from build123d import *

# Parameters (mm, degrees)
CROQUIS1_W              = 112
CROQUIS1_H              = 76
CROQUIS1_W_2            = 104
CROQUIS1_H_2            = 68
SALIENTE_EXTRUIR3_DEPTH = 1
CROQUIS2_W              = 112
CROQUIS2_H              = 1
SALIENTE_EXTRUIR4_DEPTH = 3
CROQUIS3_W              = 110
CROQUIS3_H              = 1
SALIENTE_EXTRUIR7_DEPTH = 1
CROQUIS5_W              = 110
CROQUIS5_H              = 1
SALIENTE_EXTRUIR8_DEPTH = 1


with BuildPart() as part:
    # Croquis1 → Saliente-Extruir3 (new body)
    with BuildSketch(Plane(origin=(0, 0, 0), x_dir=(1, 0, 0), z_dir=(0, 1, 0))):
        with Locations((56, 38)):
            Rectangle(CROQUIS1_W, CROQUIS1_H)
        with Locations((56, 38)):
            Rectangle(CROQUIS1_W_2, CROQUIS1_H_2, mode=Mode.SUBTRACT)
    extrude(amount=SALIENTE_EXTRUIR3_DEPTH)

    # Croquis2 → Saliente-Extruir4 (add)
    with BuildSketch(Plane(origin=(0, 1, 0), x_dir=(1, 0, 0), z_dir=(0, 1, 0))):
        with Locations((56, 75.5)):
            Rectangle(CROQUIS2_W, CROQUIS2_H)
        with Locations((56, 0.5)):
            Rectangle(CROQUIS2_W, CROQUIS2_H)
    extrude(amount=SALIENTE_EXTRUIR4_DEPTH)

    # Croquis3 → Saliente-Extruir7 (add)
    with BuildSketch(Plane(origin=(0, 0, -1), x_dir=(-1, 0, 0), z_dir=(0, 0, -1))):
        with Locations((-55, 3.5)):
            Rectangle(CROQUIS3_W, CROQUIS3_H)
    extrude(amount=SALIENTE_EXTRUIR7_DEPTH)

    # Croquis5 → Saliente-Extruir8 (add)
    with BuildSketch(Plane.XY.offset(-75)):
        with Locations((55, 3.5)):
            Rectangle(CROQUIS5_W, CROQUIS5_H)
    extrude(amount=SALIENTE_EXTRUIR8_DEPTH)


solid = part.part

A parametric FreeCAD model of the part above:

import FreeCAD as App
import Part
import Sketcher

doc = App.newDocument("Part")
body = doc.addObject("PartDesign::Body", "Body")

# Sketch on XZ plane
sketch1 = body.newObject("Sketcher::SketchObject", "Sketch")
sketch1.AttachmentSupport = (doc.getObject("XZ_Plane"), [""])
sketch1.MapMode = "FlatFace"
sketch1.addGeometry([
    Part.LineSegment(App.Vector(0, -76, 0), App.Vector(0, 0, 0)),  # 0
    Part.LineSegment(App.Vector(0, 0, 0), App.Vector(112, 0, 0)),  # 1
    Part.LineSegment(App.Vector(112, 0, 0), App.Vector(112, -76, 0)),  # 2
    Part.LineSegment(App.Vector(112, -76, 0), App.Vector(0, -76, 0)),  # 3
    Part.LineSegment(App.Vector(108, -4, 0), App.Vector(4, -4, 0)),  # 4
    Part.LineSegment(App.Vector(4, -4, 0), App.Vector(4, -72, 0)),  # 5
    Part.LineSegment(App.Vector(4, -72, 0), App.Vector(108, -72, 0)),  # 6
    Part.LineSegment(App.Vector(108, -72, 0), App.Vector(108, -4, 0)),  # 7
], False)
sketch1.addConstraint([
    Sketcher.Constraint("Coincident", 0, 2, 1, 1),
    Sketcher.Constraint("Coincident", 1, 2, 2, 1),
    Sketcher.Constraint("Coincident", 2, 2, 3, 1),
    Sketcher.Constraint("Coincident", 3, 2, 0, 1),
    Sketcher.Constraint("Coincident", 4, 2, 5, 1),
    Sketcher.Constraint("Coincident", 5, 2, 6, 1),
    Sketcher.Constraint("Coincident", 6, 2, 7, 1),
    Sketcher.Constraint("Coincident", 7, 2, 4, 1),
    Sketcher.Constraint("Vertical", 0),
    Sketcher.Constraint("Horizontal", 1),
    Sketcher.Constraint("Vertical", 2),
    Sketcher.Constraint("Horizontal", 3),
    Sketcher.Constraint("Horizontal", 4),
    Sketcher.Constraint("Vertical", 5),
    Sketcher.Constraint("Horizontal", 6),
    Sketcher.Constraint("Vertical", 7),
    Sketcher.Constraint("Coincident", 0, 2, -1, 1),
    Sketcher.Constraint("DistanceX", 1, 1, 1, 2, 112.0),
    Sketcher.Constraint("DistanceX", 4, 2, 4, 1, 104.0),
    Sketcher.Constraint("DistanceY", 0, 1, 0, 2, 76.0),
    Sketcher.Constraint("DistanceY", 5, 2, 5, 1, 68.0),
    Sketcher.Constraint("DistanceX", -1, 1, 4, 2, 4.0),
    Sketcher.Constraint("DistanceY", 4, 2, -1, 1, 4.0),
])
pad1 = body.newObject("PartDesign::Pad", "Pad")
pad1.Profile = sketch1
pad1.Length = 1
pad1.Reversed = True

# Sketch on XZ plane
sketch2 = body.newObject("Sketcher::SketchObject", "Sketch001")
sketch2.AttachmentSupport = (doc.getObject("XZ_Plane"), [""])
sketch2.MapMode = "FlatFace"
sketch2.AttachmentOffset = App.Placement(App.Vector(0, 0, -1), App.Rotation())
sketch2.addGeometry([
    Part.LineSegment(App.Vector(0, -76, 0), App.Vector(0, -75, 0)),  # 0
    Part.LineSegment(App.Vector(0, -75, 0), App.Vector(112, -75, 0)),  # 1
    Part.LineSegment(App.Vector(112, -75, 0), App.Vector(112, -76, 0)),  # 2
    Part.LineSegment(App.Vector(112, -76, 0), App.Vector(0, -76, 0)),  # 3
    Part.LineSegment(App.Vector(0, -1, 0), App.Vector(0, 0, 0)),  # 4
    Part.LineSegment(App.Vector(0, 0, 0), App.Vector(112, 0, 0)),  # 5
    Part.LineSegment(App.Vector(112, 0, 0), App.Vector(112, -1, 0)),  # 6
    Part.LineSegment(App.Vector(112, -1, 0), App.Vector(0, -1, 0)),  # 7
], False)
sketch2.addConstraint([
    Sketcher.Constraint("Coincident", 0, 2, 1, 1),
    Sketcher.Constraint("Coincident", 1, 2, 2, 1),
    Sketcher.Constraint("Coincident", 2, 2, 3, 1),
    Sketcher.Constraint("Coincident", 3, 2, 0, 1),
    Sketcher.Constraint("Coincident", 4, 2, 5, 1),
    Sketcher.Constraint("Coincident", 5, 2, 6, 1),
    Sketcher.Constraint("Coincident", 6, 2, 7, 1),
    Sketcher.Constraint("Coincident", 7, 2, 4, 1),
    Sketcher.Constraint("Vertical", 0),
    Sketcher.Constraint("Horizontal", 1),
    Sketcher.Constraint("Vertical", 2),
    Sketcher.Constraint("Horizontal", 3),
    Sketcher.Constraint("Vertical", 4),
    Sketcher.Constraint("Horizontal", 5),
    Sketcher.Constraint("Vertical", 6),
    Sketcher.Constraint("Horizontal", 7),
    Sketcher.Constraint("Coincident", 4, 2, -1, 1),
    Sketcher.Constraint("PointOnObject", 0, 2, -2),
    Sketcher.Constraint("Vertical", 2, 2, 5, 2),
    Sketcher.Constraint("Equal", 2, 4),
    Sketcher.Constraint("DistanceX", 1, 1, 1, 2, 112.0),
    Sketcher.Constraint("DistanceY", 0, 1, 0, 2, 1.0),
    Sketcher.Constraint("DistanceY", 0, 2, -1, 1, 75.0),
])
pad2 = body.newObject("PartDesign::Pad", "Pad001")
pad2.Profile = sketch2
pad2.Length = 3
pad2.Reversed = True

# Sketch on XY plane
sketch3 = body.newObject("Sketcher::SketchObject", "Sketch002")
sketch3.AttachmentSupport = (doc.getObject("XY_Plane"), [""])
sketch3.MapMode = "FlatFace"
sketch3.AttachmentOffset = App.Placement(App.Vector(0, 0, -1), App.Rotation())
sketch3.addGeometry([
    Part.LineSegment(App.Vector(110, 4, 0), App.Vector(110, 3, 0)),
    Part.LineSegment(App.Vector(110, 3, 0), App.Vector(0, 3, 0)),
    Part.LineSegment(App.Vector(0, 3, 0), App.Vector(0, 4, 0)),
    Part.LineSegment(App.Vector(0, 4, 0), App.Vector(110, 4, 0)),
], False)
sketch3.addConstraint([
    Sketcher.Constraint("Coincident", 0, 2, 1, 1),
    Sketcher.Constraint("Coincident", 1, 2, 2, 1),
    Sketcher.Constraint("Coincident", 2, 2, 3, 1),
    Sketcher.Constraint("Coincident", 3, 2, 0, 1),
    Sketcher.Constraint("Vertical", 0),
    Sketcher.Constraint("Horizontal", 1),
    Sketcher.Constraint("Vertical", 2),
    Sketcher.Constraint("Horizontal", 3),
    Sketcher.Constraint("PointOnObject", 1, 2, -2),
    Sketcher.Constraint("DistanceX", 1, 2, 1, 1, 110.0),
    Sketcher.Constraint("DistanceY", 0, 2, 0, 1, 1.0),
    Sketcher.Constraint("DistanceY", -1, 1, 0, 2, 3.0),
])
pad3 = body.newObject("PartDesign::Pad", "Pad002")
pad3.Profile = sketch3
pad3.Length = 1
pad3.Reversed = True

# Sketch on XY plane
sketch4 = body.newObject("Sketcher::SketchObject", "Sketch003")
sketch4.AttachmentSupport = (doc.getObject("XY_Plane"), [""])
sketch4.MapMode = "FlatFace"
sketch4.AttachmentOffset = App.Placement(App.Vector(0, 0, -75), App.Rotation())
sketch4.addGeometry([
    Part.LineSegment(App.Vector(0, 4, 0), App.Vector(0, 3, 0)),
    Part.LineSegment(App.Vector(0, 3, 0), App.Vector(110, 3, 0)),
    Part.LineSegment(App.Vector(110, 3, 0), App.Vector(110, 4, 0)),
    Part.LineSegment(App.Vector(110, 4, 0), App.Vector(0, 4, 0)),
], False)
sketch4.addConstraint([
    Sketcher.Constraint("Coincident", 0, 2, 1, 1),
    Sketcher.Constraint("Coincident", 1, 2, 2, 1),
    Sketcher.Constraint("Coincident", 2, 2, 3, 1),
    Sketcher.Constraint("Coincident", 3, 2, 0, 1),
    Sketcher.Constraint("Vertical", 0),
    Sketcher.Constraint("Horizontal", 1),
    Sketcher.Constraint("Vertical", 2),
    Sketcher.Constraint("Horizontal", 3),
    Sketcher.Constraint("PointOnObject", 0, 2, -2),
    Sketcher.Constraint("DistanceX", 1, 1, 1, 2, 110.0),
    Sketcher.Constraint("DistanceY", 0, 2, 0, 1, 1.0),
    Sketcher.Constraint("DistanceY", -1, 1, 0, 2, 3.0),
])
pad4 = body.newObject("PartDesign::Pad", "Pad003")
pad4.Profile = sketch4
pad4.Length = 1

doc.recompute()
